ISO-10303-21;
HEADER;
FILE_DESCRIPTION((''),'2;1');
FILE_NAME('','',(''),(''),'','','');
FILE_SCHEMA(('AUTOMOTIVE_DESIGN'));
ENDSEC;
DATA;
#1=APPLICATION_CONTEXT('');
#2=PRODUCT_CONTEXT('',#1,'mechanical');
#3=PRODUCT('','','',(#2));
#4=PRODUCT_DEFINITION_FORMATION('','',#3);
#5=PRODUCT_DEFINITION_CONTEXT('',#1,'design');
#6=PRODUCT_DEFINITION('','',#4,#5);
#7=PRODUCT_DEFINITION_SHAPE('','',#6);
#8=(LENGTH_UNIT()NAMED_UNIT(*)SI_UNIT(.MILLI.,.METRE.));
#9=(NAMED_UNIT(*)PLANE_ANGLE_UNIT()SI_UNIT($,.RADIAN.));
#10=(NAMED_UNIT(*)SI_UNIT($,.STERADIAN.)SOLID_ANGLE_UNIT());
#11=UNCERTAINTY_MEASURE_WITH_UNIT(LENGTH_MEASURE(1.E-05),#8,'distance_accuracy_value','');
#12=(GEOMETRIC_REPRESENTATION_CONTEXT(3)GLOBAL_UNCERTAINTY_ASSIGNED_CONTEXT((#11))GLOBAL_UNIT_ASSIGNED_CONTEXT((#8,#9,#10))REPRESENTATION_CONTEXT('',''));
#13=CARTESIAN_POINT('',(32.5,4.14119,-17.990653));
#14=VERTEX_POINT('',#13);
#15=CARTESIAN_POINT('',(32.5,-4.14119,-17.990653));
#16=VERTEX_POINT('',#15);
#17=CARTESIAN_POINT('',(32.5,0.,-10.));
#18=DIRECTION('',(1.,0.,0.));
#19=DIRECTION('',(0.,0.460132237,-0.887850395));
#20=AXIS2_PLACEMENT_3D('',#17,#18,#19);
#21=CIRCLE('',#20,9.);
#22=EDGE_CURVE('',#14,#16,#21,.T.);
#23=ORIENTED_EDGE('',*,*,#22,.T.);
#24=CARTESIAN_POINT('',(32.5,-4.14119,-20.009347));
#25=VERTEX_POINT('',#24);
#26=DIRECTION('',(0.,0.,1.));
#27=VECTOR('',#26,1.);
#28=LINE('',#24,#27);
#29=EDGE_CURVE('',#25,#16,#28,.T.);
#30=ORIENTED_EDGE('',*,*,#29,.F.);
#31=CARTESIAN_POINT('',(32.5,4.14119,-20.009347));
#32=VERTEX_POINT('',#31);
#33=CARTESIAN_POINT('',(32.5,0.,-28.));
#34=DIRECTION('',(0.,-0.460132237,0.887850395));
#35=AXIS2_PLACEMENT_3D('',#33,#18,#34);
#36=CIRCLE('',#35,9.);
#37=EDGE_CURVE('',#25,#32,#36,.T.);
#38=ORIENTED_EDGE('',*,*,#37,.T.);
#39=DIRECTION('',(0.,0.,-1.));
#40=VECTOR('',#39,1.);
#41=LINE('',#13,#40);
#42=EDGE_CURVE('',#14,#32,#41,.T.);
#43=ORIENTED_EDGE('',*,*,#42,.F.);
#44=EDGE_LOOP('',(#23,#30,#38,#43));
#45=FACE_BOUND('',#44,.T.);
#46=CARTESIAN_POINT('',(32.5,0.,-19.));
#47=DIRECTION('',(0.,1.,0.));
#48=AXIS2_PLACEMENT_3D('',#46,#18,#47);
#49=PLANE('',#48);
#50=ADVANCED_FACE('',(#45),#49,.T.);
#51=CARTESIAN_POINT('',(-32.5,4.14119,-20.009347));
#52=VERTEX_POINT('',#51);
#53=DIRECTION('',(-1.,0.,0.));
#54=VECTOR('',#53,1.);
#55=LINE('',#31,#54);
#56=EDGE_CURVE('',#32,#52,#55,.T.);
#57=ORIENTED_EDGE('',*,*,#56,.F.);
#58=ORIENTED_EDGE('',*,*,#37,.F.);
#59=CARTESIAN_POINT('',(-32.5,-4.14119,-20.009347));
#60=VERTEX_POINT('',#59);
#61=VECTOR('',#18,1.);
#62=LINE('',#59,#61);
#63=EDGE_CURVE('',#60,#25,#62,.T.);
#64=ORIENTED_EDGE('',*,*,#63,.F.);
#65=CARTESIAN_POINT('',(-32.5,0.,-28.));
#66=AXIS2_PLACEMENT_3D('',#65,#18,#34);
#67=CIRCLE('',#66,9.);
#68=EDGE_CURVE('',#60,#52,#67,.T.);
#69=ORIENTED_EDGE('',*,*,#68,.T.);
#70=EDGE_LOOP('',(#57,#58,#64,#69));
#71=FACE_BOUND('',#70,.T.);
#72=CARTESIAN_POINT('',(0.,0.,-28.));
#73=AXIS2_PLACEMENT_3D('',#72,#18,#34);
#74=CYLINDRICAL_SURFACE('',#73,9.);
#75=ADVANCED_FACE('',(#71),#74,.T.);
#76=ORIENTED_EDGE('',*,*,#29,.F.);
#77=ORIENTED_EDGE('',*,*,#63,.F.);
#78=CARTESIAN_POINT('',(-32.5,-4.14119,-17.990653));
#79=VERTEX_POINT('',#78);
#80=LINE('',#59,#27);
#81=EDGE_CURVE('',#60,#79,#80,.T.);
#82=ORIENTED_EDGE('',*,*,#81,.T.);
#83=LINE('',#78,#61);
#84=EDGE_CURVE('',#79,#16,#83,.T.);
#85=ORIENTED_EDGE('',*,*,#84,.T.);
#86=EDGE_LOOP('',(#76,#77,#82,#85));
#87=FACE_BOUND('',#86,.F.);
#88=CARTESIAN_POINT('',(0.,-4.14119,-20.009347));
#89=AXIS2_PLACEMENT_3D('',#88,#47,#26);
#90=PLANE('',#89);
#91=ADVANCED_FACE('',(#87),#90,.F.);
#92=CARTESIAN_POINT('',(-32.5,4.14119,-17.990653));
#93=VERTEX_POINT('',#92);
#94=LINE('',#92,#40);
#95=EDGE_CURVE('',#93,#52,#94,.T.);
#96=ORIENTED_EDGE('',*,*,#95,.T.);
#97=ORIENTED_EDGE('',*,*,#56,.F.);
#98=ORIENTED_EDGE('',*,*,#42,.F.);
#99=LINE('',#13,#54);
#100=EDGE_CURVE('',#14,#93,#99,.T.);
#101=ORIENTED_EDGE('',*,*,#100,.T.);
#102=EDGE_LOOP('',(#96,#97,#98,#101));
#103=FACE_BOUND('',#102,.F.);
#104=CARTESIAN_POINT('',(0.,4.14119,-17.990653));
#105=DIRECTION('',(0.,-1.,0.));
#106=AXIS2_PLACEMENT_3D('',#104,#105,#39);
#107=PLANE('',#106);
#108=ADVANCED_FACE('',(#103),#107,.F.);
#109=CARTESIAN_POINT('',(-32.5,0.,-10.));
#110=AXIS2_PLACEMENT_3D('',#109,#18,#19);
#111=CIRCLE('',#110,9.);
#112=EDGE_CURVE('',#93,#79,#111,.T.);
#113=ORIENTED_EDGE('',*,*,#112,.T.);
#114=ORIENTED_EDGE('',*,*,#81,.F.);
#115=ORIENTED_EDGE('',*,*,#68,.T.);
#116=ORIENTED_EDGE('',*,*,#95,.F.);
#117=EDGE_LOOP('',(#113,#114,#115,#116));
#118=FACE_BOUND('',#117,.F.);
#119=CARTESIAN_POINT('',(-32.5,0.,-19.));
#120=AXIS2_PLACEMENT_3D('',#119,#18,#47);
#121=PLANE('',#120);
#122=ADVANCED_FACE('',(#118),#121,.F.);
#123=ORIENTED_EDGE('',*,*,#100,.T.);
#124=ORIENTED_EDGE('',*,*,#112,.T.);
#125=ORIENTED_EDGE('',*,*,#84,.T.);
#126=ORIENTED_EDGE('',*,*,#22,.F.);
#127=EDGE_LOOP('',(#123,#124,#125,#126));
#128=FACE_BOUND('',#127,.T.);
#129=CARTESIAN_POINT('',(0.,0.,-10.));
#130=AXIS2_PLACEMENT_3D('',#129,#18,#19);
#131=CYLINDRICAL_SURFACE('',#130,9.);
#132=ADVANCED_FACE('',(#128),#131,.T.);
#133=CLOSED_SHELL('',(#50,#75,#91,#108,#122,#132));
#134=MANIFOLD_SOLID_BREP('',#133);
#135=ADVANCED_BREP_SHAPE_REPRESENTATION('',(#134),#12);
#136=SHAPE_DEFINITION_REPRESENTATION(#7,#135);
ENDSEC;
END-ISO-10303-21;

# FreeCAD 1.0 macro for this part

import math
import FreeCAD as App
import Part
import Sketcher

V = App.Vector
Q = App.Units.Quantity

doc = App.newDocument("Part")
body = doc.addObject("PartDesign::Body", "Body")

sketch1 = body.newObject("Sketcher::SketchObject", "Sketch")
sketch1.AttachmentSupport = (doc.getObject("YZ_Plane"), [""])
sketch1.MapMode = "FlatFace"
sketch1.addGeometry(Part.ArcOfCircle(Part.Circle(V(0, -10, 0), V(0, 0, 1), 9), math.radians(-63), math.radians(243)), False)
sketch1.addGeometry(Part.LineSegment(V(-4.1, -18, 0), V(-4.1, -20, 0)), False)
sketch1.addGeometry(Part.ArcOfCircle(Part.Circle(V(0, -28, 0), V(0, 0, 1), 9), math.radians(117), math.radians(423)), False)
sketch1.addGeometry(Part.LineSegment(V(4.1, -20, 0), V(4.1, -18, 0)), False)
sketch1.addConstraint(Sketcher.Constraint("Coincident", 0, 2, 1, 1))
sketch1.addConstraint(Sketcher.Constraint("Coincident", 1, 2, 2, 1))
sketch1.addConstraint(Sketcher.Constraint("Coincident", 2, 2, 3, 1))
sketch1.addConstraint(Sketcher.Constraint("Coincident", 3, 2, 0, 1))
sketch1.addConstraint(Sketcher.Constraint("Vertical", 1))
sketch1.addConstraint(Sketcher.Constraint("Vertical", 3))
sketch1.addConstraint(Sketcher.Constraint("Equal", 0, 2))
sketch1.addConstraint(Sketcher.Constraint("Symmetric", 1, 2, 2, 2, -2))
sketch1.addConstraint(Sketcher.Constraint("PointOnObject", 0, 3, -2))
sketch1.addConstraint(Sketcher.Constraint("Radius", 0, Q("9 mm")))
sketch1.addConstraint(Sketcher.Constraint("DistanceY", 0, 3, -1, 1, Q("10 mm")))
sketch1.addConstraint(Sketcher.Constraint("DistanceY", 2, 3, -1, 1, Q("28 mm")))
sketch1.addConstraint(Sketcher.Constraint("DistanceY", 1, 2, 1, 1, Q("2.018694 mm")))
pad1 = body.newObject("PartDesign::Pad", "Pad")
pad1.Profile = sketch1
pad1.Length = 65
pad1.Midplane = True

doc.recompute()
